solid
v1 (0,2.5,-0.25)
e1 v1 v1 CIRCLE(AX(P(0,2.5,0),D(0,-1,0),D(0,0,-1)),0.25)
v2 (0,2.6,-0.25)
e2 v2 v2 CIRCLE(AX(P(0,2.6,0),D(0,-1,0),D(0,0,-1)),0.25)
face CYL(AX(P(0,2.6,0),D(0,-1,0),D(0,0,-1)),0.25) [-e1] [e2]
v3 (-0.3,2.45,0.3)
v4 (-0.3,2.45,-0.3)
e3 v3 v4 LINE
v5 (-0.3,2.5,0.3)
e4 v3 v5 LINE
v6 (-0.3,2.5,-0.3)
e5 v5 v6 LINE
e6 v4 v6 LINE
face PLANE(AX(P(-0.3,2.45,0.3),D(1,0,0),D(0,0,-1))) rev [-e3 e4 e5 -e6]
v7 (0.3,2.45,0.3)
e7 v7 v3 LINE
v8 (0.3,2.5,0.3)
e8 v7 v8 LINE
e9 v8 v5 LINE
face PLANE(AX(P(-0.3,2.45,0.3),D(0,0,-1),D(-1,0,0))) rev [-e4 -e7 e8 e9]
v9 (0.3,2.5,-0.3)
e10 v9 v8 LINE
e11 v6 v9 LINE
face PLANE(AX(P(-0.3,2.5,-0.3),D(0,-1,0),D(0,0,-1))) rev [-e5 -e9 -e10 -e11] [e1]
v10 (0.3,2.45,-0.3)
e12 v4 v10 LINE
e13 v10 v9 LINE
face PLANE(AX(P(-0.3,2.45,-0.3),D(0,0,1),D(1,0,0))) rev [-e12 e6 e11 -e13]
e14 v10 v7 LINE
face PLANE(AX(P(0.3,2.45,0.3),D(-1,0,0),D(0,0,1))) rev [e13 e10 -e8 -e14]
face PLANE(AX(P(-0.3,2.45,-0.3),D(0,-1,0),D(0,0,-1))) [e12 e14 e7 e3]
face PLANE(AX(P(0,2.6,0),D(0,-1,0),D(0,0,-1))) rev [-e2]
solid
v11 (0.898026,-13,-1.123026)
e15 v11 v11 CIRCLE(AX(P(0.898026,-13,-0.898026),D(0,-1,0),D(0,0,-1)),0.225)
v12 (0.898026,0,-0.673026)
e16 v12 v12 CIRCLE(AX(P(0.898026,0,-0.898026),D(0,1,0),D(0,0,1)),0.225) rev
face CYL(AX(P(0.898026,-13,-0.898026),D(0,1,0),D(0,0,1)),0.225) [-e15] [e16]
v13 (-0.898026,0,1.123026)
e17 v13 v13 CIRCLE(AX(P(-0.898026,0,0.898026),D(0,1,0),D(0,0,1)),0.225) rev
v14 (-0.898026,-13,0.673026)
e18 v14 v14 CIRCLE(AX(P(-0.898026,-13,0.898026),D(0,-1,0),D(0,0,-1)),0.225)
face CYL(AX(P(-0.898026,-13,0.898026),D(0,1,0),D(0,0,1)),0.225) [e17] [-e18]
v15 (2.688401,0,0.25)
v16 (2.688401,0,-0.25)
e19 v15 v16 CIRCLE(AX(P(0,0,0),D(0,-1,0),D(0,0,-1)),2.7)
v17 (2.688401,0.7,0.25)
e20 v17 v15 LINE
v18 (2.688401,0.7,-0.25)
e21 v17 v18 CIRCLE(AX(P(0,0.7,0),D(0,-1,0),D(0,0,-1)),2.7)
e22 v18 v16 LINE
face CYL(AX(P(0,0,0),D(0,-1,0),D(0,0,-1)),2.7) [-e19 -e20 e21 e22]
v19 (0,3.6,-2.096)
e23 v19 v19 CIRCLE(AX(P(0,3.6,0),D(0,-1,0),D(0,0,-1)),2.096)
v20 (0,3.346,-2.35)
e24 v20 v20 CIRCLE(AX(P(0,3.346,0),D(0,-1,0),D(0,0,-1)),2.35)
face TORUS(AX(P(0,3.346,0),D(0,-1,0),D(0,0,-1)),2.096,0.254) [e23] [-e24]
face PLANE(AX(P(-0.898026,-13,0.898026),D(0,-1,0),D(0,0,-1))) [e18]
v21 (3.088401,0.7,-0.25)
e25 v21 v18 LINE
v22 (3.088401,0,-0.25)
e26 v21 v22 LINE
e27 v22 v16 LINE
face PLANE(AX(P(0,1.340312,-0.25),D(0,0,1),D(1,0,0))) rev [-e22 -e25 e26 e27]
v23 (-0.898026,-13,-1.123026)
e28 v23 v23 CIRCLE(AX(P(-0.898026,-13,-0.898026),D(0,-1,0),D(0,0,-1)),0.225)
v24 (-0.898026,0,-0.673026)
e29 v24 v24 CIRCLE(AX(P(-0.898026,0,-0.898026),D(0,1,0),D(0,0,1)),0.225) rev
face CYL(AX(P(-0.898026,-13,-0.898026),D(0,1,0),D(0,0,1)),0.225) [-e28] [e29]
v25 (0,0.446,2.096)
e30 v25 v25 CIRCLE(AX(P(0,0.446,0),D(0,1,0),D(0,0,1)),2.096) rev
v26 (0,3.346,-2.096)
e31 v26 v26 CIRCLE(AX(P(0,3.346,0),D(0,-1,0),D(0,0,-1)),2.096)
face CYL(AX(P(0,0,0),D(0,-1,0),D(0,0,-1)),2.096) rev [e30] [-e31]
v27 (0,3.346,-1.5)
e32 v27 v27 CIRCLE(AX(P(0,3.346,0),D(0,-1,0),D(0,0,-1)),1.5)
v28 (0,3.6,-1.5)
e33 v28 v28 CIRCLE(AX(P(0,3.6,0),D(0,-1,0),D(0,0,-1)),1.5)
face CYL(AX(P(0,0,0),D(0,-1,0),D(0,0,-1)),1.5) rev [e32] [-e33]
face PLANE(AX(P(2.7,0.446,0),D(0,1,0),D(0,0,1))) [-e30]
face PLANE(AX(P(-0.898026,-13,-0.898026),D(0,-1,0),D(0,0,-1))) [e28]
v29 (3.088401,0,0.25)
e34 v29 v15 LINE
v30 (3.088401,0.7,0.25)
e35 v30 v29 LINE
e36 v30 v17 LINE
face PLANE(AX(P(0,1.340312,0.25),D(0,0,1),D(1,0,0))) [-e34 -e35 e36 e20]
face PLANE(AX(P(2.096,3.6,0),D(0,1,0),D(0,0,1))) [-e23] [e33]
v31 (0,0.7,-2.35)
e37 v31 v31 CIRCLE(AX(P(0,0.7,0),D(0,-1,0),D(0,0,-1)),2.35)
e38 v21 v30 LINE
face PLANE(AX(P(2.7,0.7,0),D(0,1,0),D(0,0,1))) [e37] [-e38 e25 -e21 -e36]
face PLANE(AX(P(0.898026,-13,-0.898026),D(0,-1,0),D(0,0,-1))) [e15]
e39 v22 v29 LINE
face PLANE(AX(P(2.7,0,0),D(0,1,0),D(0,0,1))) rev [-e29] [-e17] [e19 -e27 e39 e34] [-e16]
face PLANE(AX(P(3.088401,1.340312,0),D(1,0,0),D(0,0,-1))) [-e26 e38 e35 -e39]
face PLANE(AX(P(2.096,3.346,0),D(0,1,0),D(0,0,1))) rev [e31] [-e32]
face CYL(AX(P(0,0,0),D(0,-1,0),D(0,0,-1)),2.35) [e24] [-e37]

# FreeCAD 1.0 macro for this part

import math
import FreeCAD as App
import Part
import Sketcher
from FreeCAD import Vector

doc = App.newDocument("Part")
body = doc.addObject("PartDesign::Body", "Body")

# Sketch on XY plane
sketch1 = body.newObject("Sketcher::SketchObject", "Sketch")
sketch1.AttachmentSupport = (doc.getObject("XY_Plane"), [""])
sketch1.MapMode = "FlatFace"
sketch1.addGeometry([
    Part.LineSegment(Vector(2.7, 0, 0), Vector(2.7, 0.7, 0)),  # 0
    Part.LineSegment(Vector(2.7, 0.7, 0), Vector(2.35, 0.7, 0)),  # 1
    Part.LineSegment(Vector(2.35, 0.7, 0), Vector(2.35, 3.35, 0)),  # 2
    Part.ArcOfCircle(Part.Circle(Vector(2.1, 3.35, 0), Vector(0, 0, 1), 0.25), math.radians(0), math.radians(90)),  # 3
    Part.LineSegment(Vector(2.1, 3.6, 0), Vector(1.5, 3.6, 0)),  # 4
    Part.LineSegment(Vector(1.5, 3.6, 0), Vector(1.5, 3.35, 0)),  # 5
    Part.LineSegment(Vector(1.5, 3.35, 0), Vector(2.1, 3.35, 0)),  # 6
    Part.LineSegment(Vector(2.1, 3.35, 0), Vector(2.1, 0.45, 0)),  # 7
    Part.LineSegment(Vector(2.1, 0.45, 0), Vector(2.45, 0.45, 0)),  # 8
    Part.LineSegment(Vector(2.45, 0.45, 0), Vector(2.45, 0, 0)),  # 9
    Part.LineSegment(Vector(2.45, 0, 0), Vector(2.7, 0, 0)),  # 10
], False)
sketch1.addConstraint([
    Sketcher.Constraint("Coincident", 0, 2, 1, 1),
    Sketcher.Constraint("Coincident", 1, 2, 2, 1),
    Sketcher.Constraint("Tangent", 2, 2, 3, 1),
    Sketcher.Constraint("Tangent", 3, 2, 4, 1),
    Sketcher.Constraint("Coincident", 4, 2, 5, 1),
    Sketcher.Constraint("Coincident", 5, 2, 6, 1),
    Sketcher.Constraint("Coincident", 6, 2, 7, 1),
    Sketcher.Constraint("Coincident", 7, 2, 8, 1),
    Sketcher.Constraint("Coincident", 8, 2, 9, 1),
    Sketcher.Constraint("Coincident", 9, 2, 10, 1),
    Sketcher.Constraint("Coincident", 10, 2, 0, 1),
    Sketcher.Constraint("Vertical", 0),
    Sketcher.Constraint("Horizontal", 1),
    Sketcher.Constraint("Vertical", 2),
    Sketcher.Constraint("Horizontal", 4),
    Sketcher.Constraint("Vertical", 5),
    Sketcher.Constraint("Horizontal", 6),
    Sketcher.Constraint("Vertical", 7),
    Sketcher.Constraint("Horizontal", 8),
    Sketcher.Constraint("Vertical", 9),
    Sketcher.Constraint("Horizontal", 10),
    Sketcher.Constraint("Coincident", 6, 2, 3, 3),
    Sketcher.Constraint("PointOnObject", 9, 2, -1),
    Sketcher.Constraint("Equal", 1, 8),
    Sketcher.Constraint("DistanceY", 0, 1, 0, 2, 0.7),
    Sketcher.Constraint("DistanceY", 7, 2, 7, 1, 2.9),
    Sketcher.Constraint("Radius", 3, 0.254),
    Sketcher.Constraint("DistanceX", 1, 2, 1, 1, 0.35),
    Sketcher.Constraint("DistanceX", -1, 1, 0, 2, 2.7),
    Sketcher.Constraint("DistanceY", -1, 1, 3, 2, 3.6),
    Sketcher.Constraint("DistanceX", -1, 1, 4, 2, 1.5),
])
revolution = body.newObject("PartDesign::Revolution", "Revolution")
revolution.Profile = sketch1
revolution.ReferenceAxis = (sketch1, ["V_Axis"])
revolution.Angle = 360

# Sketch on XZ plane
sketch2 = body.newObject("Sketcher::SketchObject", "Sketch001")
sketch2.AttachmentSupport = (doc.getObject("XZ_Plane"), [""])
sketch2.MapMode = "FlatFace"
sketch2.addGeometry(Part.Circle(Vector(0, 0, 0), Vector(0, 0, 1), 2.7), False)
sketch2.addConstraint([
    Sketcher.Constraint("Coincident", 0, 3, -1, 1),
    Sketcher.Constraint("Diameter", 0, 5.4),
])
pad1 = body.newObject("PartDesign::Pad", "Pad")
pad1.Profile = sketch2
pad1.Length = 0.446
pad1.Reversed = True

# Sketch on XZ plane
sketch3 = body.newObject("Sketcher::SketchObject", "Sketch002")
sketch3.AttachmentSupport = (doc.getObject("XZ_Plane"), [""])
sketch3.MapMode = "FlatFace"
sketch3.addGeometry([
    Part.LineSegment(Vector(3.09, -0.25, 0), Vector(3.09, 0.25, 0)),  # 0
    Part.LineSegment(Vector(3.09, 0.25, 0), Vector(2.69, 0.25, 0)),  # 1
    Part.ArcOfCircle(Part.Circle(Vector(0, 0, 0), Vector(0, 0, 1), 2.7), math.radians(0), math.radians(5.31)),  # 2
    Part.ArcOfCircle(Part.Circle(Vector(0, 0, 0), Vector(0, 0, 1), 2.7), math.radians(-5.31), math.radians(0)),  # 3
    Part.LineSegment(Vector(2.69, -0.25, 0), Vector(3.09, -0.25, 0)),  # 4
], False)
sketch3.addConstraint([
    Sketcher.Constraint("Coincident", 0, 2, 1, 1),
    Sketcher.Constraint("Coincident", 1, 2, 2, 2),
    Sketcher.Constraint("Tangent", 2, 1, 3, 2),
    Sketcher.Constraint("Coincident", 3, 1, 4, 1),
    Sketcher.Constraint("Coincident", 4, 2, 0, 1),
    Sketcher.Constraint("Vertical", 0),
    Sketcher.Constraint("Horizontal", 1),
    Sketcher.Constraint("Horizontal", 4),
    Sketcher.Constraint("Coincident", 2, 3, -1, 1),
    Sketcher.Constraint("Equal", 2, 3),
    Sketcher.Constraint("PointOnObject", 2, 1, -1),
    Sketcher.Constraint("Vertical", 1, 2, 3, 1),
    Sketcher.Constraint("Radius", 2, 2.7),
    Sketcher.Constraint("DistanceX", 1, 2, 1, 1, 0.4),
    Sketcher.Constraint("DistanceY", 0, 1, 0, 2, 0.5),
])
pad2 = body.newObject("PartDesign::Pad", "Pad001")
pad2.Profile = sketch3
pad2.Length = 0.7
pad2.Reversed = True

# Sketch on XZ plane
sketch4 = body.newObject("Sketcher::SketchObject", "Sketch003")
sketch4.AttachmentSupport = (doc.getObject("XZ_Plane"), [""])
sketch4.MapMode = "FlatFace"
sketch4.addGeometry([
    Part.Circle(Vector(0.9, -0.9, 0), Vector(0, 0, 1), 0.23),
    Part.Circle(Vector(-0.9, 0.9, 0), Vector(0, 0, 1), 0.23),
    Part.Circle(Vector(-0.9, -0.9, 0), Vector(0, 0, 1), 0.23),
], False)
sketch4.addConstraint([
    Sketcher.Constraint("Equal", 0, 1),
    Sketcher.Constraint("Equal", 1, 2),
    Sketcher.Constraint("Symmetric", 0, 3, 1, 3, -1, 1),
    Sketcher.Constraint("Symmetric", 0, 3, 2, 3, -2),
    Sketcher.Constraint("Diameter", 0, 0.45),
    Sketcher.Constraint("DistanceX", 1, 3, 0, 3, 1.796051),
    Sketcher.Constraint("DistanceY", 0, 3, 1, 3, 1.796051),
])
pad3 = body.newObject("PartDesign::Pad", "Pad002")
pad3.Profile = sketch4
pad3.Length = 13
body2 = doc.addObject("PartDesign::Body", "Body001")

# Sketch on XZ plane
sketch5 = body2.newObject("Sketcher::SketchObject", "Sketch004")
sketch5.AttachmentSupport = (doc.getObject("XZ_Plane001"), [""])
sketch5.MapMode = "FlatFace"
sketch5.AttachmentOffset = App.Placement(Vector(0, 0, -2.5), App.Rotation())
sketch5.addGeometry([
    Part.LineSegment(Vector(-0.3, 0.3, 0), Vector(-0.3, -0.3, 0)),
    Part.LineSegment(Vector(-0.3, -0.3, 0), Vector(0.3, -0.3, 0)),
    Part.LineSegment(Vector(0.3, -0.3, 0), Vector(0.3, 0.3, 0)),
    Part.LineSegment(Vector(0.3, 0.3, 0), Vector(-0.3, 0.3, 0)),
], False)
sketch5.addConstraint([
    Sketcher.Constraint("Coincident", 0, 2, 1, 1),
    Sketcher.Constraint("Coincident", 1, 2, 2, 1),
    Sketcher.Constraint("Coincident", 2, 2, 3, 1),
    Sketcher.Constraint("Coincident", 3, 2, 0, 1),
    Sketcher.Constraint("Vertical", 0),
    Sketcher.Constraint("Horizontal", 1),
    Sketcher.Constraint("Vertical", 2),
    Sketcher.Constraint("Horizontal", 3),
    Sketcher.Constraint("Symmetric", 0, 2, 2, 2, -1, 1),
    Sketcher.Constraint("Equal", 3, 0),
    Sketcher.Constraint("DistanceX", 1, 1, 1, 2, 0.6),
])
pad4 = body2.newObject("PartDesign::Pad", "Pad003")
pad4.Profile = sketch5
pad4.Length = 0.05

# Sketch on XZ plane
sketch6 = body2.newObject("Sketcher::SketchObject", "Sketch005")
sketch6.AttachmentSupport = (doc.getObject("XZ_Plane001"), [""])
sketch6.MapMode = "FlatFace"
sketch6.AttachmentOffset = App.Placement(Vector(0, 0, -2.5), App.Rotation())
sketch6.addGeometry(Part.Circle(Vector(0, 0, 0), Vector(0, 0, 1), 0.25), False)
sketch6.addConstraint([
    Sketcher.Constraint("Coincident", 0, 3, -1, 1),
    Sketcher.Constraint("Diameter", 0, 0.5),
])
pad5 = body2.newObject("PartDesign::Pad", "Pad004")
pad5.Profile = sketch6
pad5.Length = 0.1
pad5.Reversed = True

doc.recompute()
